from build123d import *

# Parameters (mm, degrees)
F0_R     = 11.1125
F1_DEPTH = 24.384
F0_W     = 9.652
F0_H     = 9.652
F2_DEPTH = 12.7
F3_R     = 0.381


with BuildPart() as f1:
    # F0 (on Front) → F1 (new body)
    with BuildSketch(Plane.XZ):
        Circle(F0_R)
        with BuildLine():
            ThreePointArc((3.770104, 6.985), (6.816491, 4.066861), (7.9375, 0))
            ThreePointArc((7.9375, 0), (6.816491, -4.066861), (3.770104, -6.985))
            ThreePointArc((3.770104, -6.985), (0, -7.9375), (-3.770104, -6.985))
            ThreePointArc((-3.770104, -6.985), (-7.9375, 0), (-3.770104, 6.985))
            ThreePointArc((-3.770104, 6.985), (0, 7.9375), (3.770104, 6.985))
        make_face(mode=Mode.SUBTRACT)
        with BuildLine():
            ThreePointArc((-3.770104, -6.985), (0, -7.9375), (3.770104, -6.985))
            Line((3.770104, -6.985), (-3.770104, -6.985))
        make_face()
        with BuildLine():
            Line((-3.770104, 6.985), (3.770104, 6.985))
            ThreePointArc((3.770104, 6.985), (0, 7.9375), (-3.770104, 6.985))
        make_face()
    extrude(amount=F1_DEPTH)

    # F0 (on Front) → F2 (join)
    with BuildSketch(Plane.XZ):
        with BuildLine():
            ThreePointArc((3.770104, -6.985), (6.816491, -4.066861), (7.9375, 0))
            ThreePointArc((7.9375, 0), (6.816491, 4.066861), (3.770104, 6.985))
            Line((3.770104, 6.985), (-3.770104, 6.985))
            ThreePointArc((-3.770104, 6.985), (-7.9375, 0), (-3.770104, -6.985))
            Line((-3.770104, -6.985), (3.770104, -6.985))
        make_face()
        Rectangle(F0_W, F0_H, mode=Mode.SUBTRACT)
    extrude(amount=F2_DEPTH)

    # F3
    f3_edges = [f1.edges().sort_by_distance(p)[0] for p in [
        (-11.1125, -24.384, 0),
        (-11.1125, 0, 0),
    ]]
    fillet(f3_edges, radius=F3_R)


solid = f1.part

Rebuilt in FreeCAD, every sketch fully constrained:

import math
import FreeCAD as App
import Part
import Sketcher
from FreeCAD import Vector
Q = App.Units.Quantity


def edges_at(feature, points):
    """Names of the edges that pass closest to the given points."""
    edges = feature.Shape.Edges
    near = lambda p: min(range(len(edges)), key=lambda i: edges[i].distToShape(Part.Vertex(*p))[0])
    return sorted({f"Edge{near(p) + 1}" for p in points})

doc = App.newDocument("Part")
body = doc.addObject("PartDesign::Body", "Body")

sketch1 = body.newObject("Sketcher::SketchObject", "Sketch")
sketch1.AttachmentSupport = (doc.getObject("XZ_Plane"), [""])
sketch1.MapMode = "FlatFace"
sketch1.addGeometry(Part.Circle(Vector(0, 0, 0), Vector(0, 0, 1), 11), False)
sketch1.addGeometry(Part.ArcOfCircle(Part.Circle(Vector(0, 0, 0), Vector(0, 0, 1), 8), math.radians(0), math.radians(62)), False)
sketch1.addGeometry(Part.ArcOfCircle(Part.Circle(Vector(0, 0, 0), Vector(0, 0, 1), 8), math.radians(-62), math.radians(0)), False)
sketch1.addGeometry(Part.LineSegment(Vector(4, -7, 0), Vector(-4, -7, 0)), False)
sketch1.addGeometry(Part.ArcOfCircle(Part.Circle(Vector(0, 0, 0), Vector(0, 0, 1), 8), math.radians(118), math.radians(242)), False)
sketch1.addGeometry(Part.LineSegment(Vector(-4, 7, 0), Vector(4, 7, 0)), False)
sketch1.addConstraint(Sketcher.Constraint("Tangent", 1, 1, 2, 2))
sketch1.addConstraint(Sketcher.Constraint("Coincident", 2, 1, 3, 1))
sketch1.addConstraint(Sketcher.Constraint("Coincident", 3, 2, 4, 2))
sketch1.addConstraint(Sketcher.Constraint("Coincident", 4, 1, 5, 1))
sketch1.addConstraint(Sketcher.Constraint("Coincident", 5, 2, 1, 2))
sketch1.addConstraint(Sketcher.Constraint("Horizontal", 3))
sketch1.addConstraint(Sketcher.Constraint("Horizontal", 5))
sketch1.addConstraint(Sketcher.Constraint("Coincident", 0, 3, -1, 1))
sketch1.addConstraint(Sketcher.Constraint("Coincident", 1, 3, -1, 1))
sketch1.addConstraint(Sketcher.Constraint("Coincident", 4, 3, -1, 1))
sketch1.addConstraint(Sketcher.Constraint("Equal", 1, 2))
sketch1.addConstraint(Sketcher.Constraint("Equal", 2, 4))
sketch1.addConstraint(Sketcher.Constraint("PointOnObject", 1, 1, -1))
sketch1.addConstraint(Sketcher.Constraint("Vertical", 3, 2, 4, 1))
sketch1.addConstraint(Sketcher.Constraint("Diameter", 0, Q("0.875 in")))
sketch1.addConstraint(Sketcher.Constraint("Radius", 1, Q("0.3125 in")))
sketch1.addConstraint(Sketcher.Constraint("DistanceY", 2, 1, -1, 1, Q("0.275 in")))
pad1 = body.newObject("PartDesign::Pad", "Pad")
pad1.Profile = sketch1
pad1.Length = Q("0.96 in")

sketch2 = body.newObject("Sketcher::SketchObject", "Sketch001")
sketch2.AttachmentSupport = (doc.getObject("XZ_Plane"), [""])
sketch2.MapMode = "FlatFace"
sketch2.addGeometry(Part.ArcOfCircle(Part.Circle(Vector(0, 0, 0), Vector(0, 0, 1), 8), math.radians(-62), math.radians(0)), False)
sketch2.addGeometry(Part.ArcOfCircle(Part.Circle(Vector(0, 0, 0), Vector(0, 0, 1), 8), math.radians(0), math.radians(62)), False)
sketch2.addGeometry(Part.LineSegment(Vector(4, 7, 0), Vector(-4, 7, 0)), False)
sketch2.addGeometry(Part.ArcOfCircle(Part.Circle(Vector(0, 0, 0), Vector(0, 0, 1), 8), math.radians(118), math.radians(242)), False)
sketch2.addGeometry(Part.LineSegment(Vector(-4, -7, 0), Vector(4, -7, 0)), False)
sketch2.addGeometry(Part.LineSegment(Vector(5, -5, 0), Vector(-5, -5, 0)), False)
sketch2.addGeometry(Part.LineSegment(Vector(-5, -5, 0), Vector(-5, 5, 0)), False)
sketch2.addGeometry(Part.LineSegment(Vector(-5, 5, 0), Vector(5, 5, 0)), False)
sketch2.addGeometry(Part.LineSegment(Vector(5, 5, 0), Vector(5, -5, 0)), False)
sketch2.addConstraint(Sketcher.Constraint("Tangent", 0, 2, 1, 1))
sketch2.addConstraint(Sketcher.Constraint("Coincident", 1, 2, 2, 1))
sketch2.addConstraint(Sketcher.Constraint("Coincident", 2, 2, 3, 1))
sketch2.addConstraint(Sketcher.Constraint("Coincident", 3, 2, 4, 1))
sketch2.addConstraint(Sketcher.Constraint("Coincident", 4, 2, 0, 1))
sketch2.addConstraint(Sketcher.Constraint("Coincident", 5, 2, 6, 1))
sketch2.addConstraint(Sketcher.Constraint("Coincident", 6, 2, 7, 1))
sketch2.addConstraint(Sketcher.Constraint("Coincident", 7, 2, 8, 1))
sketch2.addConstraint(Sketcher.Constraint("Coincident", 8, 2, 5, 1))
sketch2.addConstraint(Sketcher.Constraint("Horizontal", 2))
sketch2.addConstraint(Sketcher.Constraint("Horizontal", 4))
sketch2.addConstraint(Sketcher.Constraint("Horizontal", 5))
sketch2.addConstraint(Sketcher.Constraint("Vertical", 6))
sketch2.addConstraint(Sketcher.Constraint("Horizontal", 7))
sketch2.addConstraint(Sketcher.Constraint("Vertical", 8))
sketch2.addConstraint(Sketcher.Constraint("Coincident", 0, 3, -1, 1))
sketch2.addConstraint(Sketcher.Constraint("Coincident", 3, 3, -1, 1))
sketch2.addConstraint(Sketcher.Constraint("Equal", 0, 1))
sketch2.addConstraint(Sketcher.Constraint("Equal", 1, 3))
sketch2.addConstraint(Sketcher.Constraint("Symmetric", 5, 2, 7, 2, -1, 1))
sketch2.addConstraint(Sketcher.Constraint("PointOnObject", 0, 2, -1))
sketch2.addConstraint(Sketcher.Constraint("Vertical", 2, 2, 3, 2))
sketch2.addConstraint(Sketcher.Constraint("Equal", 7, 6))
sketch2.addConstraint(Sketcher.Constraint("Radius", 0, Q("0.3125 in")))
sketch2.addConstraint(Sketcher.Constraint("DistanceX", 5, 2, 5, 1, Q("0.38 in")))
sketch2.addConstraint(Sketcher.Constraint("DistanceY", 3, 2, 2, 2, Q("0.55 in")))
pad2 = body.newObject("PartDesign::Pad", "Pad001")
pad2.Profile = sketch2
pad2.Length = Q("0.5 in")
doc.recompute()

fillet = body.newObject("PartDesign::Fillet", "Fillet")
fillet.Base = (pad2, edges_at(pad2, [(-11.113, -24.384, 0), (-11.113, 0, 0)]))
fillet.Radius = Q("0.015 in")

doc.recompute()
